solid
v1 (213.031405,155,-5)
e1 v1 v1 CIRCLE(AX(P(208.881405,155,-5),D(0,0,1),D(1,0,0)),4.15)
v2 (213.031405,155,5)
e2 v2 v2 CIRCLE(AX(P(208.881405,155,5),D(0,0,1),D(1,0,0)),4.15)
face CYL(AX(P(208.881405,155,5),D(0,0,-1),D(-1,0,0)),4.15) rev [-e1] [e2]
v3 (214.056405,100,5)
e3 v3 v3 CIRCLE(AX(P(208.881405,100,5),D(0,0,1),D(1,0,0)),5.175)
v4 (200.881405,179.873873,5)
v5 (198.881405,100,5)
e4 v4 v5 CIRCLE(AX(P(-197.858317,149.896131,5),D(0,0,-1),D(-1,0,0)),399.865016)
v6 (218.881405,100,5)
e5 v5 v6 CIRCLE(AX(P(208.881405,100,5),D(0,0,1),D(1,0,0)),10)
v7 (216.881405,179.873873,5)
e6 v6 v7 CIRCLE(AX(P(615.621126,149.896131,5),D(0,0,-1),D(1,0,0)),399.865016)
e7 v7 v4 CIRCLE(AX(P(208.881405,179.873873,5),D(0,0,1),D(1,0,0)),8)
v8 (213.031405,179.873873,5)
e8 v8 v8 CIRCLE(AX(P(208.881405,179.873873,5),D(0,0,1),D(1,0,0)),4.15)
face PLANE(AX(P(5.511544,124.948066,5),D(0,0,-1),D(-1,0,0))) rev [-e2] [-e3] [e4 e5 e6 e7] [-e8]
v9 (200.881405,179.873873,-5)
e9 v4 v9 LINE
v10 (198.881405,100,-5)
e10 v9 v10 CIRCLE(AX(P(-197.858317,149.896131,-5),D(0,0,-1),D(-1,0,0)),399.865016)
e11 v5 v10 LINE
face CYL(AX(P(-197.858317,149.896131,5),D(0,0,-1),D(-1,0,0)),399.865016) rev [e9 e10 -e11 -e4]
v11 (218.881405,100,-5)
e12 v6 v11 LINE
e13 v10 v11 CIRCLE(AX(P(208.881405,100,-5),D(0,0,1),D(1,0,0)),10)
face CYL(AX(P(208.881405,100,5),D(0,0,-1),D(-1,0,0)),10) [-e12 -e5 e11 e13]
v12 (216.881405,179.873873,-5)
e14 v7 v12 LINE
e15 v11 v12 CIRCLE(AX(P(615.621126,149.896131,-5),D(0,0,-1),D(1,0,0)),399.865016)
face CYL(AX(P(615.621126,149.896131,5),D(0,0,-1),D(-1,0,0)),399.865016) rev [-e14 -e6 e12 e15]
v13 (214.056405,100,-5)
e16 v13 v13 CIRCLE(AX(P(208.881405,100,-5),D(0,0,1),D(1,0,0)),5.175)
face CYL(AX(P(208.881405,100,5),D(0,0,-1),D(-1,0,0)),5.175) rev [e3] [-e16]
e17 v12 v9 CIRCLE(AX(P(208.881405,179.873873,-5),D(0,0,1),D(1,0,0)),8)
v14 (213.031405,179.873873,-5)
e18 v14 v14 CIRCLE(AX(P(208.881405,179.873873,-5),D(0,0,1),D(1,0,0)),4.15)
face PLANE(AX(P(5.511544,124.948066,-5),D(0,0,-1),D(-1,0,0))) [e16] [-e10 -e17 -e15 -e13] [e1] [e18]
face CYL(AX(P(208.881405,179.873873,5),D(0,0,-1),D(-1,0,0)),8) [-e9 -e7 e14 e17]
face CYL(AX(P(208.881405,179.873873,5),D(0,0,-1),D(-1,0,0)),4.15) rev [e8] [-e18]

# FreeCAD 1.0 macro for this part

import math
import FreeCAD as App
import Part
import Sketcher

V = App.Vector

doc = App.newDocument("Part")
body = doc.addObject("PartDesign::Body", "Body")

# Sketch on XY plane
sketch1 = body.newObject("Sketcher::SketchObject", "Sketch")
sketch1.AttachmentSupport = (doc.getObject("XY_Plane"), [""])
sketch1.MapMode = "FlatFace"
sketch1.addGeometry([
    Part.ArcOfCircle(Part.Circle(V(208.9, 100, 0), V(0, 0, 1), 10), math.radians(180), math.radians(360)),  # 0
    Part.ArcOfCircle(Part.Circle(V(615.6, 149.9, 0), V(0, 0, 1), 399.9), math.radians(175.7), math.radians(187.17)),  # 1
    Part.ArcOfCircle(Part.Circle(V(208.9, 179.9, 0), V(0, 0, 1), 8), math.radians(0), math.radians(180)),  # 2
    Part.ArcOfCircle(Part.Circle(V(-197.9, 149.9, 0), V(0, 0, 1), 399.9), math.radians(-7.17), math.radians(4.3)),  # 3
    Part.Circle(V(208.9, 100, 0), V(0, 0, 1), 5.2),  # 4
    Part.Circle(V(208.9, 155, 0), V(0, 0, 1), 4.2),  # 5
    Part.Circle(V(208.9, 179.9, 0), V(0, 0, 1), 4.2),  # 6
], False)
sketch1.addConstraint([
    Sketcher.Constraint("Coincident", 0, 2, 1, 2),
    Sketcher.Constraint("Coincident", 1, 1, 2, 1),
    Sketcher.Constraint("Coincident", 2, 2, 3, 2),
    Sketcher.Constraint("Coincident", 3, 1, 0, 1),
    Sketcher.Constraint("Coincident", 4, 3, 0, 3),
    Sketcher.Constraint("Coincident", 6, 3, 2, 3),
    Sketcher.Constraint("Equal", 1, 3),
    Sketcher.Constraint("Equal", 5, 6),
    Sketcher.Constraint("Horizontal", 1, 3, 3, 3),
    Sketcher.Constraint("Horizontal", 4, 3, 0, 2),
    Sketcher.Constraint("Horizontal", 6, 3, 1, 1),
    Sketcher.Constraint("Horizontal", 1, 1, 2, 2),
    Sketcher.Constraint("Horizontal", 0, 2, 3, 1),
    Sketcher.Constraint("Vertical", 4, 3, 5, 3),
    Sketcher.Constraint("Radius", 0, 10.0),
    Sketcher.Constraint("Radius", 2, 8.0),
    Sketcher.Constraint("Diameter", 5, 8.3),
    Sketcher.Constraint("Diameter", 4, 10.35),
    Sketcher.Constraint("DistanceY", -1, 1, 0, 3, 100.0),
    Sketcher.Constraint("DistanceY", -1, 1, 5, 3, 155.0),
    Sketcher.Constraint("Radius", 1, 399.865016),
    Sketcher.Constraint("DistanceY", -1, 1, 1, 3, 149.896131),
    Sketcher.Constraint("DistanceX", -1, 1, 0, 3, 208.881405),
])
pad1 = body.newObject("PartDesign::Pad", "Pad")
pad1.Profile = sketch1
pad1.Length = 10
pad1.Midplane = True

doc.recompute()
